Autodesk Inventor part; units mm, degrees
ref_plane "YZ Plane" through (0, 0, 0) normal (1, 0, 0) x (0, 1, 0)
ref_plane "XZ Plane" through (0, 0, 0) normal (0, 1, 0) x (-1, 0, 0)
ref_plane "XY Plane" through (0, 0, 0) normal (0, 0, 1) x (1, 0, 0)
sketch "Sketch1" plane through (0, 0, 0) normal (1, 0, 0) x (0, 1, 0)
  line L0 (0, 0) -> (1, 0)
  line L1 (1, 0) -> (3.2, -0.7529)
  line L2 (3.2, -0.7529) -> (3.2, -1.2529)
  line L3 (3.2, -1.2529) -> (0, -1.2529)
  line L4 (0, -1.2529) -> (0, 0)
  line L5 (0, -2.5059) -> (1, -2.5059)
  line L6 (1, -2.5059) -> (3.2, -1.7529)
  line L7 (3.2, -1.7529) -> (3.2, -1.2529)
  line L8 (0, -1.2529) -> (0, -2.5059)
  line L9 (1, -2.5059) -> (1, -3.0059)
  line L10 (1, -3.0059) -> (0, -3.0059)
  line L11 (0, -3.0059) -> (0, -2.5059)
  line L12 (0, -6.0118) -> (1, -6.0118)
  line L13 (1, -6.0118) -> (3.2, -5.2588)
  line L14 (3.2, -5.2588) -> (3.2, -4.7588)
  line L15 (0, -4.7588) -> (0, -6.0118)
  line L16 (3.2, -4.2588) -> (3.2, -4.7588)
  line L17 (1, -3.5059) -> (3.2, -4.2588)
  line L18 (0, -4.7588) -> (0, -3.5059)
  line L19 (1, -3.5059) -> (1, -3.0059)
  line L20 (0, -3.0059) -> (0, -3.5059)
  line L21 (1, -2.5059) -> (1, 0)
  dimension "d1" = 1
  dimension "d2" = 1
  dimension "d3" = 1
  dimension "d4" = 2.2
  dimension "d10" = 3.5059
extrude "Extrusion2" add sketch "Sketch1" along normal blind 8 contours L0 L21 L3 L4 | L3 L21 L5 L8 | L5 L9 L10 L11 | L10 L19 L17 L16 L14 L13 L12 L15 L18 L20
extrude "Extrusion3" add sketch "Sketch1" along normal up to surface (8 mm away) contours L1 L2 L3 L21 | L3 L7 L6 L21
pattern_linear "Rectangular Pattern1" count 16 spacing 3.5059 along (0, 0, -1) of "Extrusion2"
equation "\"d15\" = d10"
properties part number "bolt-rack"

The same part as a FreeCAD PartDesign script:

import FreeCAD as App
import Part
import Sketcher

V = App.Vector
Q = App.Units.Quantity


def add_polygon(sketch, points):
    """Adds a closed chain of lines whose ends are joined by coincident constraints."""
    first, n = sketch.GeometryCount, len(points)
    for a, b in zip(points, points[1:] + points[:1]):
        sketch.addGeometry(Part.LineSegment(App.Vector(*a, 0), App.Vector(*b, 0)), False)
    for i in range(n):
        sketch.addConstraint(Sketcher.Constraint("Coincident", first + i, 2, first + (i + 1) % n, 1))

doc = App.newDocument("Part")
body = doc.addObject("PartDesign::Body", "Body")

# Sketch on YZ plane
sketch1 = body.newObject("Sketcher::SketchObject", "Sketch")
sketch1.AttachmentSupport = (doc.getObject("YZ_Plane"), [""])
sketch1.MapMode = "FlatFace"
add_polygon(sketch1, [(1, 0), (0, 0), (0, -6.0118), (1, -6.0118), (3.2, -5.2588), (3.2, -4.2588), (1, -3.5059)])  # lines 0-6
sketch1.addConstraint([
    Sketcher.Constraint("Horizontal", 0),
    Sketcher.Constraint("Vertical", 1),
    Sketcher.Constraint("Horizontal", 2),
    Sketcher.Constraint("Vertical", 4),
    Sketcher.Constraint("Vertical", 6),
    Sketcher.Constraint("Coincident", 0, 2, -1, 1),
    Sketcher.Constraint("Vertical", 2, 2, 5, 2),
    Sketcher.Constraint("Equal", 2, 4),
    Sketcher.Constraint("Equal", 3, 5),
    Sketcher.Constraint("DistanceX", 0, 2, 0, 1, Q("1 mm")),
    Sketcher.Constraint("DistanceX", 2, 2, 3, 2, Q("2.2 mm")),
    Sketcher.Constraint("DistanceY", 6, 1, 6, 2, Q("3.506 mm")),
    Sketcher.Constraint("DistanceY", 1, 2, 1, 1, Q("6.0118 mm")),
])
pad1 = body.newObject("PartDesign::Pad", "Pad")
pad1.Profile = sketch1
pad1.Length = 8

# Sketch on YZ plane
sketch2 = body.newObject("Sketcher::SketchObject", "Sketch001")
sketch2.AttachmentSupport = (doc.getObject("YZ_Plane"), [""])
sketch2.MapMode = "FlatFace"
add_polygon(sketch2, [(3.2, -0.7529), (1, 0), (1, -2.5059), (3.2, -1.7529)])  # lines 0-3
sketch2.addConstraint([
    Sketcher.Constraint("Vertical", 1),
    Sketcher.Constraint("Vertical", 3),
    Sketcher.Constraint("PointOnObject", 0, 2, -1),
    Sketcher.Constraint("Equal", 0, 2),
    Sketcher.Constraint("DistanceY", 3, 1, 3, 2, Q("1 mm")),
    Sketcher.Constraint("DistanceX", -1, 1, 0, 2, Q("1 mm")),
    Sketcher.Constraint("DistanceX", 1, 2, 2, 2, Q("2.2 mm")),
    Sketcher.Constraint("DistanceY", 1, 2, 1, 1, Q("2.506 mm")),
])
pad2 = body.newObject("PartDesign::Pad", "Pad001")
pad2.Profile = sketch2
pad2.Length = 8
doc.recompute()

linearpattern = body.newObject("PartDesign::LinearPattern", "LinearPattern")
linearpattern.Originals = [pad1]
linearpattern.Direction = (doc.getObject("Z_Axis"), [""])
linearpattern.Mode = "offset"
linearpattern.Offset = 3.5059
linearpattern.Occurrences = 16
linearpattern.Reversed = True
body.Tip = linearpattern

doc.recompute()
